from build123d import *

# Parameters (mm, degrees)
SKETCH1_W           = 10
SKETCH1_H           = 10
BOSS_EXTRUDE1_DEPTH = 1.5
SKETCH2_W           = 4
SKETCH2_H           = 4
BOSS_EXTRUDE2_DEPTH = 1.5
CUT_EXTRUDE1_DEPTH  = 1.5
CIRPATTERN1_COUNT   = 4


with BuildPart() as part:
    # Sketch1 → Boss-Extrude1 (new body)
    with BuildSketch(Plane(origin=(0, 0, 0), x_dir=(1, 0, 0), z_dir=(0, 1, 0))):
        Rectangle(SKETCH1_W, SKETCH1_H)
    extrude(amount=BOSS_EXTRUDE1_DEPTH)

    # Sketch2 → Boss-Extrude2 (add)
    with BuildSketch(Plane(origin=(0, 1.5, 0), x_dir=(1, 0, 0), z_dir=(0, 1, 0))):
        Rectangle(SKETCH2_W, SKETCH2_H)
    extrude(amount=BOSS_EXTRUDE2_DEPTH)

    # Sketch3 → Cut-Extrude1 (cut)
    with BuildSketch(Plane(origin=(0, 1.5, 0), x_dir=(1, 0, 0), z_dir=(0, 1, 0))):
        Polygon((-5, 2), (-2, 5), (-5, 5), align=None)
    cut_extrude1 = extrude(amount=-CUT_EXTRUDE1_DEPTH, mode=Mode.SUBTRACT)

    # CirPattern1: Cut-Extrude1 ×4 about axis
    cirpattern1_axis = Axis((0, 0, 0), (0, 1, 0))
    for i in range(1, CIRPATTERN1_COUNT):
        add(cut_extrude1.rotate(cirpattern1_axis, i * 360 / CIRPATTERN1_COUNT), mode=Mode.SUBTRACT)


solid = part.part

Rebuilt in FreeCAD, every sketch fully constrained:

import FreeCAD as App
import Part
import Sketcher
from FreeCAD import Vector
Q = App.Units.Quantity


def add_polygon(sketch, points):
    """Adds a closed chain of lines whose ends are joined by coincident constraints."""
    first, n = sketch.GeometryCount, len(points)
    for a, b in zip(points, points[1:] + points[:1]):
        sketch.addGeometry(Part.LineSegment(App.Vector(*a, 0), App.Vector(*b, 0)), False)
    for i in range(n):
        sketch.addConstraint(Sketcher.Constraint("Coincident", first + i, 2, first + (i + 1) % n, 1))

doc = App.newDocument("Part")
body = doc.addObject("PartDesign::Body", "Body")

sketch1 = body.newObject("Sketcher::SketchObject", "Sketch")
sketch1.AttachmentSupport = (doc.getObject("XZ_Plane"), [""])
sketch1.MapMode = "FlatFace"
add_polygon(sketch1, [(-5, -5), (-5, 5), (5, 5), (5, -5)])
sketch1.addConstraint(Sketcher.Constraint("Vertical", 0))
sketch1.addConstraint(Sketcher.Constraint("Horizontal", 1))
sketch1.addConstraint(Sketcher.Constraint("Vertical", 2))
sketch1.addConstraint(Sketcher.Constraint("Horizontal", 3))
sketch1.addConstraint(Sketcher.Constraint("Symmetric", 0, 2, 2, 2, -1, 1))
sketch1.addConstraint(Sketcher.Constraint("Equal", 3, 0))
sketch1.addConstraint(Sketcher.Constraint("DistanceX", 1, 1, 1, 2, Q("10 mm")))
pad1 = body.newObject("PartDesign::Pad", "Pad")
pad1.Profile = sketch1
pad1.Length = 1.5
pad1.Reversed = True

sketch2 = body.newObject("Sketcher::SketchObject", "Sketch001")
sketch2.AttachmentSupport = (doc.getObject("XZ_Plane"), [""])
sketch2.MapMode = "FlatFace"
sketch2.AttachmentOffset = App.Placement(Vector(0, 0, -1.5), App.Rotation())
add_polygon(sketch2, [(-2, -2), (-2, 2), (2, 2), (2, -2)])
sketch2.addConstraint(Sketcher.Constraint("Vertical", 0))
sketch2.addConstraint(Sketcher.Constraint("Horizontal", 1))
sketch2.addConstraint(Sketcher.Constraint("Vertical", 2))
sketch2.addConstraint(Sketcher.Constraint("Horizontal", 3))
sketch2.addConstraint(Sketcher.Constraint("Symmetric", 0, 2, 2, 2, -1, 1))
sketch2.addConstraint(Sketcher.Constraint("Equal", 3, 0))
sketch2.addConstraint(Sketcher.Constraint("DistanceX", 1, 1, 1, 2, Q("4 mm")))
pad2 = body.newObject("PartDesign::Pad", "Pad001")
pad2.Profile = sketch2
pad2.Length = 1.5
pad2.Reversed = True

sketch3 = body.newObject("Sketcher::SketchObject", "Sketch002")
sketch3.AttachmentSupport = (doc.getObject("XZ_Plane"), [""])
sketch3.MapMode = "FlatFace"
sketch3.AttachmentOffset = App.Placement(Vector(0, 0, -1.5), App.Rotation())
add_polygon(sketch3, [(-5, -2), (-2, -5), (-5, -5)])
sketch3.addConstraint(Sketcher.Constraint("Horizontal", 1))
sketch3.addConstraint(Sketcher.Constraint("Vertical", 2))
sketch3.addConstraint(Sketcher.Constraint("Equal", 1, 2))
sketch3.addConstraint(Sketcher.Constraint("DistanceX", 1, 2, 1, 1, Q("3 mm")))
sketch3.addConstraint(Sketcher.Constraint("DistanceX", 0, 2, -1, 1, Q("2 mm")))
sketch3.addConstraint(Sketcher.Constraint("DistanceY", 0, 2, -1, 1, Q("5 mm")))
pocket1 = body.newObject("PartDesign::Pocket", "Pocket")
pocket1.Profile = sketch3
pocket1.Length = 1.5
pocket1.Reversed = True
doc.recompute()

polarpattern = body.newObject("PartDesign::PolarPattern", "PolarPattern")
polarpattern.Originals = [pocket1]
polarpattern.Axis = (doc.getObject("Y_Axis"), [""])
polarpattern.Angle = 360
polarpattern.Occurrences = 4
body.Tip = polarpattern

doc.recompute()
